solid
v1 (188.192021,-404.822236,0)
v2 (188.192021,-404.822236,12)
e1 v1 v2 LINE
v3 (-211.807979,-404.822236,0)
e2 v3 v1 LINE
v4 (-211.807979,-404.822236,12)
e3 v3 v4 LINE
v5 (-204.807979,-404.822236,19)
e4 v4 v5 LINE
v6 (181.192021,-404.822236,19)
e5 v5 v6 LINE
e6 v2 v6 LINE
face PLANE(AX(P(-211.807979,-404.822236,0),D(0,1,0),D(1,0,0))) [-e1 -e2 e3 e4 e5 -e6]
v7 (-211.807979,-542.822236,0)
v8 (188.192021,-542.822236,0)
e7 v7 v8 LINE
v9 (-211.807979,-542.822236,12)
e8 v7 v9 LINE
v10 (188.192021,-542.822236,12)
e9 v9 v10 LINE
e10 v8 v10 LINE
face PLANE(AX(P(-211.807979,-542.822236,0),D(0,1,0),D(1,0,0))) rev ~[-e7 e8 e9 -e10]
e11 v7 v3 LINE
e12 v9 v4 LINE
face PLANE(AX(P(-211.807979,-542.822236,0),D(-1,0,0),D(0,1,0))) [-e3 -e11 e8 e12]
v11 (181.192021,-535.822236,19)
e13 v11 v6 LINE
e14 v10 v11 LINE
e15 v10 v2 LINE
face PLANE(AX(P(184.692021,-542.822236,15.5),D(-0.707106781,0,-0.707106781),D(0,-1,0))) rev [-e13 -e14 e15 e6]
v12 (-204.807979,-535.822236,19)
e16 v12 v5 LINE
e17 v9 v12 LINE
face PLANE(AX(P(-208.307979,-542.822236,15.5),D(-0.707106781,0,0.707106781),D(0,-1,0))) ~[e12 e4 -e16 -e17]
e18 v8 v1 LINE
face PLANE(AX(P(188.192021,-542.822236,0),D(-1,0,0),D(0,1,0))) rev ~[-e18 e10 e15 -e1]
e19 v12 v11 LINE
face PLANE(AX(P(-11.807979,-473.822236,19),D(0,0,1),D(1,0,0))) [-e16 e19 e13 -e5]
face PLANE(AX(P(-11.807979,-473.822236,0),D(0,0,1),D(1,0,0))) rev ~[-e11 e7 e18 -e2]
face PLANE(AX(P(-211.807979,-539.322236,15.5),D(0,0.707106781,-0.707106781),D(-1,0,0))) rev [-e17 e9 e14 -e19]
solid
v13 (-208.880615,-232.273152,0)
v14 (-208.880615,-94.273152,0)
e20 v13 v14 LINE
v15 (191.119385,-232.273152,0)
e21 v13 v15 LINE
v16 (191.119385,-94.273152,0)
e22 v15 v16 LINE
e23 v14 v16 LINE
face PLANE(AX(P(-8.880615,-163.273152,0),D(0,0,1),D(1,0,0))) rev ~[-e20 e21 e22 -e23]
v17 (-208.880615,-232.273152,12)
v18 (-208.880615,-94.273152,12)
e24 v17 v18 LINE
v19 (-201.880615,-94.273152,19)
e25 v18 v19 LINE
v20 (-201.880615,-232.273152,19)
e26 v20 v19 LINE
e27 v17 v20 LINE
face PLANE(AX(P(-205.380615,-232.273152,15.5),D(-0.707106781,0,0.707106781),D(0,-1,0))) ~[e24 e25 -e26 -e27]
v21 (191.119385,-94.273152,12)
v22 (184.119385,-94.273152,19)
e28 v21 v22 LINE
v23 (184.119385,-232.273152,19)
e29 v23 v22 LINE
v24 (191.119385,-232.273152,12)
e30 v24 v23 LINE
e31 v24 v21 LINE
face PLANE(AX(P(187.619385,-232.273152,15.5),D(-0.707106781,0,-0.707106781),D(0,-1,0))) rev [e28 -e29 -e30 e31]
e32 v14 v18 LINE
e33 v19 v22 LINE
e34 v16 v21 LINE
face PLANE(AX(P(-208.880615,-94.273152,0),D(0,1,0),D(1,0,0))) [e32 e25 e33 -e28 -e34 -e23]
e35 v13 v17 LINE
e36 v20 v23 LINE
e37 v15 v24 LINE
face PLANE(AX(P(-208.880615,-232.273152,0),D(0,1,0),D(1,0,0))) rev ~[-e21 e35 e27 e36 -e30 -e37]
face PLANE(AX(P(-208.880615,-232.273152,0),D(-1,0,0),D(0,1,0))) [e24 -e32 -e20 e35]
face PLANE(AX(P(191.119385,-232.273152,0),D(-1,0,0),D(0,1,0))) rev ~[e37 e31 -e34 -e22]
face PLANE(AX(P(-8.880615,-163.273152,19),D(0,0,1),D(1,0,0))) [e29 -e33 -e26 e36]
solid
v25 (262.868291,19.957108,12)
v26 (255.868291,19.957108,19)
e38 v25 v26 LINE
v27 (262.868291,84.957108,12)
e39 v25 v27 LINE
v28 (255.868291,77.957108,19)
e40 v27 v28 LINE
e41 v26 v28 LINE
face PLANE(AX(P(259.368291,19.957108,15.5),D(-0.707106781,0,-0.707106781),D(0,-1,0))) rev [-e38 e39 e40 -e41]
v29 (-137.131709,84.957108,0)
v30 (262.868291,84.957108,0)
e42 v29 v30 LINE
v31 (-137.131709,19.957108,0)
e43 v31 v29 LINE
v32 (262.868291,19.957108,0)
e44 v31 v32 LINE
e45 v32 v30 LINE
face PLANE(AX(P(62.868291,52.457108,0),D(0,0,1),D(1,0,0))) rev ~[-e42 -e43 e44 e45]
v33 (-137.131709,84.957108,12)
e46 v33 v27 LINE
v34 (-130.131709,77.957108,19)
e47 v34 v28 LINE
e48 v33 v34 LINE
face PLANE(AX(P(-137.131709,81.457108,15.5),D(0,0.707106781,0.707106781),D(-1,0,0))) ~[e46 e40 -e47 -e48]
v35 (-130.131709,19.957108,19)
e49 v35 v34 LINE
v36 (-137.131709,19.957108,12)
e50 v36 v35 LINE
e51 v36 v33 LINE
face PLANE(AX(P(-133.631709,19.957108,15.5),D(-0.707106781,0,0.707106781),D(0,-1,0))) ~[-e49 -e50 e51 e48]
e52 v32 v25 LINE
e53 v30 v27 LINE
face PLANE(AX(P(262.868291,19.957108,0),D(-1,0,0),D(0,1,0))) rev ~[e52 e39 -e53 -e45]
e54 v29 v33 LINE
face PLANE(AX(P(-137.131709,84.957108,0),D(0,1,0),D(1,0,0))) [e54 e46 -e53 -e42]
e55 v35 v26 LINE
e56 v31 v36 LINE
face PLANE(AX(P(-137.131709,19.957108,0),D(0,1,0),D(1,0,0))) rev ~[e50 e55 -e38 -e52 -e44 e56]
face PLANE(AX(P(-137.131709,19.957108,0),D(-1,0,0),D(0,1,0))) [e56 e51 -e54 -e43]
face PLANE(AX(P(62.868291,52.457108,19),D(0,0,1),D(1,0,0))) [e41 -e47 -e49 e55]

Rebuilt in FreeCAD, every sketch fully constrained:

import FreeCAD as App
import Part
import Sketcher


def edges_at(feature, points):
    """Names of the edges that pass closest to the given points."""
    edges = feature.Shape.Edges
    near = lambda p: min(range(len(edges)), key=lambda i: edges[i].distToShape(Part.Vertex(*p))[0])
    return sorted({f"Edge{near(p) + 1}" for p in points})

doc = App.newDocument("Part")
params = doc.addObject("Spreadsheet::Sheet", "Params")
for row, (alias, value) in enumerate([
    ("sketch1_width", "400 mm"),
    ("sketch1_height", "138 mm"),
    ("pad1_length", "19 mm"),
    ("chamfer_size", "7 mm"),
    ("sketch2_width", "400 mm"),
    ("sketch2_height", "65 mm"),
    ("pad2_length", "19 mm"),
    ("chamfer2_size", "7 mm"),
    ("sketch3_width", "400 mm"),
    ("sketch3_height", "138 mm"),
    ("pad3_length", "19 mm"),
    ("chamfer3_size", "7 mm"),
], start=1):
    params.set(f"A{row}", alias)
    params.set(f"B{row}", "=" + value)
    params.setAlias(f"B{row}", alias)

body = doc.addObject("PartDesign::Body", "Body")

# Sketch on XY plane
sketch1 = body.newObject("Sketcher::SketchObject", "Sketch")
sketch1.AttachmentSupport = (doc.getObject("XY_Plane"), [""])
sketch1.MapMode = "FlatFace"
sketch1.addGeometry(Part.LineSegment(App.Vector(-209, -94, 0), App.Vector(-209, -232, 0)), False)
sketch1.addGeometry(Part.LineSegment(App.Vector(-209, -232, 0), App.Vector(191, -232, 0)), False)
sketch1.addGeometry(Part.LineSegment(App.Vector(191, -232, 0), App.Vector(191, -94, 0)), False)
sketch1.addGeometry(Part.LineSegment(App.Vector(191, -94, 0), App.Vector(-209, -94, 0)), False)
sketch1.addConstraint(Sketcher.Constraint("Coincident", 0, 2, 1, 1))
sketch1.addConstraint(Sketcher.Constraint("Coincident", 1, 2, 2, 1))
sketch1.addConstraint(Sketcher.Constraint("Coincident", 2, 2, 3, 1))
sketch1.addConstraint(Sketcher.Constraint("Coincident", 3, 2, 0, 1))
sketch1.addConstraint(Sketcher.Constraint("Vertical", 0))
sketch1.addConstraint(Sketcher.Constraint("Horizontal", 1))
sketch1.addConstraint(Sketcher.Constraint("Vertical", 2))
sketch1.addConstraint(Sketcher.Constraint("Horizontal", 3))
sketch1.addConstraint(Sketcher.Constraint("DistanceX", 1, 1, 1, 2, 400.0))
sketch1.addConstraint(Sketcher.Constraint("DistanceY", 0, 2, 0, 1, 138.0))
sketch1.addConstraint(Sketcher.Constraint("DistanceY", 2, 2, -1, 1, 94.273152))
sketch1.addConstraint(Sketcher.Constraint("DistanceX", 0, 2, -1, 1, 208.880615))
sketch1.setExpression("Constraints[8]", "Params.sketch1_width")
sketch1.setExpression("Constraints[9]", "Params.sketch1_height")
pad1 = body.newObject("PartDesign::Pad", "Pad")
pad1.Profile = sketch1
pad1.setExpression("Length", "Params.pad1_length")
doc.recompute()

chamfer = body.newObject("PartDesign::Chamfer", "Chamfer")
chamfer.Base = (pad1, edges_at(pad1, [(-208.881, -163.273, 19), (191.119, -163.273, 19)]))
chamfer.setExpression("Size", "Params.chamfer_size")
body2 = doc.addObject("PartDesign::Body", "Body001")

# Sketch on XY plane
sketch2 = body2.newObject("Sketcher::SketchObject", "Sketch001")
sketch2.AttachmentSupport = (doc.getObject("XY_Plane001"), [""])
sketch2.MapMode = "FlatFace"
sketch2.addGeometry(Part.LineSegment(App.Vector(-137, 85, 0), App.Vector(-137, 20, 0)), False)
sketch2.addGeometry(Part.LineSegment(App.Vector(-137, 20, 0), App.Vector(263, 20, 0)), False)
sketch2.addGeometry(Part.LineSegment(App.Vector(263, 20, 0), App.Vector(263, 85, 0)), False)
sketch2.addGeometry(Part.LineSegment(App.Vector(263, 85, 0), App.Vector(-137, 85, 0)), False)
sketch2.addConstraint(Sketcher.Constraint("Coincident", 0, 2, 1, 1))
sketch2.addConstraint(Sketcher.Constraint("Coincident", 1, 2, 2, 1))
sketch2.addConstraint(Sketcher.Constraint("Coincident", 2, 2, 3, 1))
sketch2.addConstraint(Sketcher.Constraint("Coincident", 3, 2, 0, 1))
sketch2.addConstraint(Sketcher.Constraint("Vertical", 0))
sketch2.addConstraint(Sketcher.Constraint("Horizontal", 1))
sketch2.addConstraint(Sketcher.Constraint("Vertical", 2))
sketch2.addConstraint(Sketcher.Constraint("Horizontal", 3))
sketch2.addConstraint(Sketcher.Constraint("DistanceX", 1, 1, 1, 2, 400.0))
sketch2.addConstraint(Sketcher.Constraint("DistanceY", 0, 2, 0, 1, 65.0))
sketch2.addConstraint(Sketcher.Constraint("DistanceX", 0, 2, -1, 1, 137.131709))
sketch2.addConstraint(Sketcher.Constraint("DistanceY", -1, 1, 0, 2, 19.957108))
sketch2.setExpression("Constraints[8]", "Params.sketch2_width")
sketch2.setExpression("Constraints[9]", "Params.sketch2_height")
pad2 = body2.newObject("PartDesign::Pad", "Pad001")
pad2.Profile = sketch2
pad2.setExpression("Length", "Params.pad2_length")
doc.recompute()

chamfer2 = body2.newObject("PartDesign::Chamfer", "Chamfer001")
chamfer2.Base = (pad2, edges_at(pad2, [(-137.132, 52.457, 19), (62.868, 84.957, 19), (262.868, 52.457, 19)]))
chamfer2.setExpression("Size", "Params.chamfer2_size")
body3 = doc.addObject("PartDesign::Body", "Body002")

# Sketch on XY plane
sketch3 = body3.newObject("Sketcher::SketchObject", "Sketch002")
sketch3.AttachmentSupport = (doc.getObject("XY_Plane002"), [""])
sketch3.MapMode = "FlatFace"
sketch3.addGeometry(Part.LineSegment(App.Vector(-212, -405, 0), App.Vector(-212, -543, 0)), False)
sketch3.addGeometry(Part.LineSegment(App.Vector(-212, -543, 0), App.Vector(188, -543, 0)), False)
sketch3.addGeometry(Part.LineSegment(App.Vector(188, -543, 0), App.Vector(188, -405, 0)), False)
sketch3.addGeometry(Part.LineSegment(App.Vector(188, -405, 0), App.Vector(-212, -405, 0)), False)
sketch3.addConstraint(Sketcher.Constraint("Coincident", 0, 2, 1, 1))
sketch3.addConstraint(Sketcher.Constraint("Coincident", 1, 2, 2, 1))
sketch3.addConstraint(Sketcher.Constraint("Coincident", 2, 2, 3, 1))
sketch3.addConstraint(Sketcher.Constraint("Coincident", 3, 2, 0, 1))
sketch3.addConstraint(Sketcher.Constraint("Vertical", 0))
sketch3.addConstraint(Sketcher.Constraint("Horizontal", 1))
sketch3.addConstraint(Sketcher.Constraint("Vertical", 2))
sketch3.addConstraint(Sketcher.Constraint("Horizontal", 3))
sketch3.addConstraint(Sketcher.Constraint("DistanceX", 1, 1, 1, 2, 400.0))
sketch3.addConstraint(Sketcher.Constraint("DistanceY", 0, 2, 0, 1, 138.0))
sketch3.addConstraint(Sketcher.Constraint("DistanceX", 0, 2, -1, 1, 211.807979))
sketch3.addConstraint(Sketcher.Constraint("DistanceY", 0, 2, -1, 1, 542.822236))
sketch3.setExpression("Constraints[8]", "Params.sketch3_width")
sketch3.setExpression("Constraints[9]", "Params.sketch3_height")
pad3 = body3.newObject("PartDesign::Pad", "Pad002")
pad3.Profile = sketch3
pad3.setExpression("Length", "Params.pad3_length")
doc.recompute()

chamfer3 = body3.newObject("PartDesign::Chamfer", "Chamfer002")
chamfer3.Base = (pad3, edges_at(pad3, [(-11.808, -542.822, 19), (-211.808, -473.822, 19), (188.192, -473.822, 19)]))
chamfer3.setExpression("Size", "Params.chamfer3_size")

doc.recompute()
